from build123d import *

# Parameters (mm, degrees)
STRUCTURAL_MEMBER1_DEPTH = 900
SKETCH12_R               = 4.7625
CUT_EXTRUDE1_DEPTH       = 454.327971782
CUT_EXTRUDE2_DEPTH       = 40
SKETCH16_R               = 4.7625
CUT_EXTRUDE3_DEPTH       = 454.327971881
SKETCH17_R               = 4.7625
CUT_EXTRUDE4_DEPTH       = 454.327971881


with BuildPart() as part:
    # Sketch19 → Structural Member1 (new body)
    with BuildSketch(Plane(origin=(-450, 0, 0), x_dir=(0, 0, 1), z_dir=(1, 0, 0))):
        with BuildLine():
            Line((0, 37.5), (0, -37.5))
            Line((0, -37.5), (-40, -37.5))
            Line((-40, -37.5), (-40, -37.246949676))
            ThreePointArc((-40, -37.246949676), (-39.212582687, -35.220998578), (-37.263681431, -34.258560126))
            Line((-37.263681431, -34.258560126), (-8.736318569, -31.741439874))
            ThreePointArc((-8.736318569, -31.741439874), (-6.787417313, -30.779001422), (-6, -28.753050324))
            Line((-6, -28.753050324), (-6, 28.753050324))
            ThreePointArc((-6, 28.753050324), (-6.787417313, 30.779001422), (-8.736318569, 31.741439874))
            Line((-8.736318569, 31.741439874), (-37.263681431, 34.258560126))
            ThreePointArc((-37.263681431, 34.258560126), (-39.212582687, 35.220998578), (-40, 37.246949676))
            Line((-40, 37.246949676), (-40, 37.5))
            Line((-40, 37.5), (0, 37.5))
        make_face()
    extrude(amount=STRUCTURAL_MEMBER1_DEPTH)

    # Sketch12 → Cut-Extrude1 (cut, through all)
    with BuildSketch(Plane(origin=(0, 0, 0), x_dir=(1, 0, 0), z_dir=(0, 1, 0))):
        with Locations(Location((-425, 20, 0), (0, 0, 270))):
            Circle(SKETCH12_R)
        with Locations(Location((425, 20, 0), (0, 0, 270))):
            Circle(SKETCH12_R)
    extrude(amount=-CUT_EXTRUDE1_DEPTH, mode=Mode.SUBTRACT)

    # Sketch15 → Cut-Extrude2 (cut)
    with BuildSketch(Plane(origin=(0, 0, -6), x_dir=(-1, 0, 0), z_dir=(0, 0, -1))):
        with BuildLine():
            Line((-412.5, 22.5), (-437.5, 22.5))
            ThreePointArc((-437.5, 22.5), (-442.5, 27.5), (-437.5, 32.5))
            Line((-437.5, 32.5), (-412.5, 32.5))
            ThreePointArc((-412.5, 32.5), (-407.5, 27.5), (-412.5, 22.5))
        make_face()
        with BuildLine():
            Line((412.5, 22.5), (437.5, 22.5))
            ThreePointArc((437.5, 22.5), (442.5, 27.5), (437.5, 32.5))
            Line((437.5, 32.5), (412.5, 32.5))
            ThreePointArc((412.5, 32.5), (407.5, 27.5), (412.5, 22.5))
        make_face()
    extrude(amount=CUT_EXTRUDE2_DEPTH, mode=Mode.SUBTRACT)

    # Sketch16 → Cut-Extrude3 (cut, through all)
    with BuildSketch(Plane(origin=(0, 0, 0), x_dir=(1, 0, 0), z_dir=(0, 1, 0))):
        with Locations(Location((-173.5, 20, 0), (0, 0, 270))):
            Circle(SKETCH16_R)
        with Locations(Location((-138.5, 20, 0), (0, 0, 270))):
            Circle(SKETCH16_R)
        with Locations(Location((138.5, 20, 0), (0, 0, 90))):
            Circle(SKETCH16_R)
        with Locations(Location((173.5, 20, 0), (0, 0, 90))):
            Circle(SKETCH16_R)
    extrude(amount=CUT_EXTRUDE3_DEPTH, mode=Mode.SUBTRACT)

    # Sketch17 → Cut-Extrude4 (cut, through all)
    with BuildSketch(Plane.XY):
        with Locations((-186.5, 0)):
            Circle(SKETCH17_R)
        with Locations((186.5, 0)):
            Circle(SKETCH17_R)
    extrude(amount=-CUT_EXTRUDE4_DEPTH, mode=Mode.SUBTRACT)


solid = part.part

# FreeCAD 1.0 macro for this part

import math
import FreeCAD as App
import Part
import Sketcher
from FreeCAD import Vector

doc = App.newDocument("Part")
body = doc.addObject("PartDesign::Body", "Body")

sketch1 = body.newObject("Sketcher::SketchObject", "Sketch")
sketch1.AttachmentSupport = (doc.getObject("YZ_Plane"), [""])
sketch1.MapMode = "FlatFace"
sketch1.AttachmentOffset = App.Placement(Vector(0, 0, -450), App.Rotation())
sketch1.addGeometry([
    Part.LineSegment(Vector(37.5, 0, 0), Vector(-37.5, 0, 0)),
    Part.LineSegment(Vector(-37.5, 0, 0), Vector(-37.5, -40, 0)),
    Part.LineSegment(Vector(-37.5, -40, 0), Vector(-37.25, -40, 0)),
    Part.ArcOfCircle(Part.Circle(Vector(-37.25, -37, 0), Vector(0, 0, 1), 3), math.radians(-90), math.radians(-5)),
    Part.LineSegment(Vector(-34.26, -37.26, 0), Vector(-31.74, -8.74, 0)),
    Part.ArcOfCircle(Part.Circle(Vector(-28.75, -9, 0), Vector(0, 0, 1), 3), math.radians(90), math.radians(175)),
    Part.LineSegment(Vector(-28.75, -6, 0), Vector(28.75, -6, 0)),
    Part.ArcOfCircle(Part.Circle(Vector(28.75, -9, 0), Vector(0, 0, 1), 3), math.radians(5), math.radians(90)),
    Part.LineSegment(Vector(31.74, -8.74, 0), Vector(34.26, -37.26, 0)),
    Part.ArcOfCircle(Part.Circle(Vector(37.25, -37, 0), Vector(0, 0, 1), 3), math.radians(-175), math.radians(-90)),
    Part.LineSegment(Vector(37.25, -40, 0), Vector(37.5, -40, 0)),
    Part.LineSegment(Vector(37.5, -40, 0), Vector(37.5, 0, 0)),
], False)
sketch1.addConstraint([
    Sketcher.Constraint("Coincident", 0, 2, 1, 1),
    Sketcher.Constraint("Coincident", 1, 2, 2, 1),
    Sketcher.Constraint("Tangent", 2, 2, 3, 1),
    Sketcher.Constraint("Tangent", 3, 2, 4, 1),
    Sketcher.Constraint("Tangent", 4, 2, 5, 2),
    Sketcher.Constraint("Tangent", 5, 1, 6, 1),
    Sketcher.Constraint("Tangent", 6, 2, 7, 2),
    Sketcher.Constraint("Tangent", 7, 1, 8, 1),
    Sketcher.Constraint("Tangent", 8, 2, 9, 1),
    Sketcher.Constraint("Tangent", 9, 2, 10, 1),
    Sketcher.Constraint("Coincident", 10, 2, 11, 1),
    Sketcher.Constraint("Coincident", 11, 2, 0, 1),
    Sketcher.Constraint("Horizontal", 0),
    Sketcher.Constraint("Vertical", 1),
    Sketcher.Constraint("Horizontal", 2),
    Sketcher.Constraint("Horizontal", 6),
    Sketcher.Constraint("Horizontal", 10),
    Sketcher.Constraint("Vertical", 11),
    Sketcher.Constraint("Equal", 3, 5),
    Sketcher.Constraint("Equal", 5, 7),
    Sketcher.Constraint("Equal", 7, 9),
    Sketcher.Constraint("Symmetric", 0, 2, 11, 2, -1, 1),
    Sketcher.Constraint("Symmetric", 3, 3, 9, 3, -2),
    Sketcher.Constraint("Horizontal", 4, 2, 7, 1),
    Sketcher.Constraint("Radius", 3, 3.0),
    Sketcher.Constraint("DistanceX", 0, 2, 0, 1, 75.0),
    Sketcher.Constraint("DistanceY", 1, 2, 1, 1, 40.0),
    Sketcher.Constraint("DistanceY", 5, 3, -1, 1, 9.0),
    Sketcher.Constraint("DistanceX", 3, 3, 7, 3, 66.0),
    Sketcher.Constraint("DistanceX", 6, 1, 6, 2, 57.506101),
])
pad1 = body.newObject("PartDesign::Pad", "Pad")
pad1.Profile = sketch1
pad1.Length = 900

sketch2 = body.newObject("Sketcher::SketchObject", "Sketch001")
sketch2.AttachmentSupport = (doc.getObject("XZ_Plane"), [""])
sketch2.MapMode = "FlatFace"
sketch2.addGeometry([
    Part.Circle(Vector(-425, -20, 0), Vector(0, 0, 1), 4.8),
    Part.Circle(Vector(425, -20, 0), Vector(0, 0, 1), 4.8),
], False)
sketch2.addConstraint([
    Sketcher.Constraint("Equal", 0, 1),
    Sketcher.Constraint("Symmetric", 0, 3, 1, 3, -2),
    Sketcher.Constraint("Diameter", 0, 9.525),
    Sketcher.Constraint("DistanceX", 0, 3, -1, 1, 425.0),
    Sketcher.Constraint("DistanceY", 0, 3, -1, 1, 20.0),
])
pocket1 = body.newObject("PartDesign::Pocket", "Pocket")
pocket1.Profile = sketch2
pocket1.Type = "ThroughAll"
pocket1.Reversed = True

sketch3 = body.newObject("Sketcher::SketchObject", "Sketch002")
sketch3.AttachmentSupport = (doc.getObject("XY_Plane"), [""])
sketch3.MapMode = "FlatFace"
sketch3.AttachmentOffset = App.Placement(Vector(0, 0, -6), App.Rotation())
sketch3.addGeometry([
    Part.LineSegment(Vector(438, 22, 0), Vector(412, 22, 0)),
    Part.ArcOfCircle(Part.Circle(Vector(412, 28, 0), Vector(0, 0, 1), 5), math.radians(90), math.radians(270)),
    Part.LineSegment(Vector(412, 32, 0), Vector(438, 32, 0)),
    Part.ArcOfCircle(Part.Circle(Vector(438, 28, 0), Vector(0, 0, 1), 5), math.radians(-90), math.radians(90)),
    Part.LineSegment(Vector(-412, 22, 0), Vector(-438, 22, 0)),
    Part.ArcOfCircle(Part.Circle(Vector(-438, 28, 0), Vector(0, 0, 1), 5), math.radians(90), math.radians(270)),
    Part.LineSegment(Vector(-438, 32, 0), Vector(-412, 32, 0)),
    Part.ArcOfCircle(Part.Circle(Vector(-412, 28, 0), Vector(0, 0, 1), 5), math.radians(-90), math.radians(90)),
], False)
sketch3.addConstraint([
    Sketcher.Constraint("Tangent", 0, 2, 1, 2),
    Sketcher.Constraint("Tangent", 1, 1, 2, 1),
    Sketcher.Constraint("Tangent", 2, 2, 3, 2),
    Sketcher.Constraint("Tangent", 3, 1, 0, 1),
    Sketcher.Constraint("Tangent", 4, 2, 5, 2),
    Sketcher.Constraint("Tangent", 5, 1, 6, 1),
    Sketcher.Constraint("Tangent", 6, 2, 7, 2),
    Sketcher.Constraint("Tangent", 7, 1, 4, 1),
    Sketcher.Constraint("Horizontal", 0),
    Sketcher.Constraint("Horizontal", 2),
    Sketcher.Constraint("Horizontal", 4),
    Sketcher.Constraint("Horizontal", 6),
    Sketcher.Constraint("Equal", 3, 5),
    Sketcher.Constraint("Symmetric", 3, 3, 5, 3, -2),
    Sketcher.Constraint("Equal", 2, 4),
    Sketcher.Constraint("Radius", 1, 5.0),
    Sketcher.Constraint("DistanceX", 0, 2, 0, 1, 25.0),
    Sketcher.Constraint("DistanceX", 5, 3, 1, 3, 850.0),
    Sketcher.Constraint("DistanceY", -1, 1, 1, 3, 27.5),
])
pocket2 = body.newObject("PartDesign::Pocket", "Pocket001")
pocket2.Profile = sketch3
pocket2.Length = 40

sketch4 = body.newObject("Sketcher::SketchObject", "Sketch003")
sketch4.AttachmentSupport = (doc.getObject("XZ_Plane"), [""])
sketch4.MapMode = "FlatFace"
sketch4.addGeometry([
    Part.Circle(Vector(-173.5, -20, 0), Vector(0, 0, 1), 4.8),
    Part.Circle(Vector(-138.5, -20, 0), Vector(0, 0, 1), 4.8),
    Part.Circle(Vector(138.5, -20, 0), Vector(0, 0, 1), 4.8),
    Part.Circle(Vector(173.5, -20, 0), Vector(0, 0, 1), 4.8),
], False)
sketch4.addConstraint([
    Sketcher.Constraint("Equal", 0, 1),
    Sketcher.Constraint("Equal", 1, 2),
    Sketcher.Constraint("Equal", 2, 3),
    Sketcher.Constraint("Symmetric", 1, 3, 2, 3, -2),
    Sketcher.Constraint("Symmetric", 0, 3, 3, 3, -2),
    Sketcher.Constraint("Horizontal", 0, 3, 1, 3),
    Sketcher.Constraint("Diameter", 0, 9.525),
    Sketcher.Constraint("DistanceY", 0, 3, -1, 1, 20.0),
    Sketcher.Constraint("DistanceX", 0, 3, 1, 3, 35.0),
    Sketcher.Constraint("DistanceX", 1, 3, 2, 3, 277.0),
])
pocket3 = body.newObject("PartDesign::Pocket", "Pocket002")
pocket3.Profile = sketch4
pocket3.Type = "ThroughAll"

sketch5 = body.newObject("Sketcher::SketchObject", "Sketch004")
sketch5.AttachmentSupport = (doc.getObject("XY_Plane"), [""])
sketch5.MapMode = "FlatFace"
sketch5.addGeometry([
    Part.Circle(Vector(-186.5, 0, 0), Vector(0, 0, 1), 4.8),
    Part.Circle(Vector(186.5, 0, 0), Vector(0, 0, 1), 4.8),
], False)
sketch5.addConstraint([
    Sketcher.Constraint("Equal", 0, 1),
    Sketcher.Constraint("Symmetric", 0, 3, 1, 3, -1, 1),
    Sketcher.Constraint("PointOnObject", 0, 3, -1),
    Sketcher.Constraint("Diameter", 0, 9.525),
    Sketcher.Constraint("DistanceX", 0, 3, 1, 3, 373.0),
])
pocket4 = body.newObject("PartDesign::Pocket", "Pocket003")
pocket4.Profile = sketch5
pocket4.Type = "ThroughAll"

doc.recompute()
